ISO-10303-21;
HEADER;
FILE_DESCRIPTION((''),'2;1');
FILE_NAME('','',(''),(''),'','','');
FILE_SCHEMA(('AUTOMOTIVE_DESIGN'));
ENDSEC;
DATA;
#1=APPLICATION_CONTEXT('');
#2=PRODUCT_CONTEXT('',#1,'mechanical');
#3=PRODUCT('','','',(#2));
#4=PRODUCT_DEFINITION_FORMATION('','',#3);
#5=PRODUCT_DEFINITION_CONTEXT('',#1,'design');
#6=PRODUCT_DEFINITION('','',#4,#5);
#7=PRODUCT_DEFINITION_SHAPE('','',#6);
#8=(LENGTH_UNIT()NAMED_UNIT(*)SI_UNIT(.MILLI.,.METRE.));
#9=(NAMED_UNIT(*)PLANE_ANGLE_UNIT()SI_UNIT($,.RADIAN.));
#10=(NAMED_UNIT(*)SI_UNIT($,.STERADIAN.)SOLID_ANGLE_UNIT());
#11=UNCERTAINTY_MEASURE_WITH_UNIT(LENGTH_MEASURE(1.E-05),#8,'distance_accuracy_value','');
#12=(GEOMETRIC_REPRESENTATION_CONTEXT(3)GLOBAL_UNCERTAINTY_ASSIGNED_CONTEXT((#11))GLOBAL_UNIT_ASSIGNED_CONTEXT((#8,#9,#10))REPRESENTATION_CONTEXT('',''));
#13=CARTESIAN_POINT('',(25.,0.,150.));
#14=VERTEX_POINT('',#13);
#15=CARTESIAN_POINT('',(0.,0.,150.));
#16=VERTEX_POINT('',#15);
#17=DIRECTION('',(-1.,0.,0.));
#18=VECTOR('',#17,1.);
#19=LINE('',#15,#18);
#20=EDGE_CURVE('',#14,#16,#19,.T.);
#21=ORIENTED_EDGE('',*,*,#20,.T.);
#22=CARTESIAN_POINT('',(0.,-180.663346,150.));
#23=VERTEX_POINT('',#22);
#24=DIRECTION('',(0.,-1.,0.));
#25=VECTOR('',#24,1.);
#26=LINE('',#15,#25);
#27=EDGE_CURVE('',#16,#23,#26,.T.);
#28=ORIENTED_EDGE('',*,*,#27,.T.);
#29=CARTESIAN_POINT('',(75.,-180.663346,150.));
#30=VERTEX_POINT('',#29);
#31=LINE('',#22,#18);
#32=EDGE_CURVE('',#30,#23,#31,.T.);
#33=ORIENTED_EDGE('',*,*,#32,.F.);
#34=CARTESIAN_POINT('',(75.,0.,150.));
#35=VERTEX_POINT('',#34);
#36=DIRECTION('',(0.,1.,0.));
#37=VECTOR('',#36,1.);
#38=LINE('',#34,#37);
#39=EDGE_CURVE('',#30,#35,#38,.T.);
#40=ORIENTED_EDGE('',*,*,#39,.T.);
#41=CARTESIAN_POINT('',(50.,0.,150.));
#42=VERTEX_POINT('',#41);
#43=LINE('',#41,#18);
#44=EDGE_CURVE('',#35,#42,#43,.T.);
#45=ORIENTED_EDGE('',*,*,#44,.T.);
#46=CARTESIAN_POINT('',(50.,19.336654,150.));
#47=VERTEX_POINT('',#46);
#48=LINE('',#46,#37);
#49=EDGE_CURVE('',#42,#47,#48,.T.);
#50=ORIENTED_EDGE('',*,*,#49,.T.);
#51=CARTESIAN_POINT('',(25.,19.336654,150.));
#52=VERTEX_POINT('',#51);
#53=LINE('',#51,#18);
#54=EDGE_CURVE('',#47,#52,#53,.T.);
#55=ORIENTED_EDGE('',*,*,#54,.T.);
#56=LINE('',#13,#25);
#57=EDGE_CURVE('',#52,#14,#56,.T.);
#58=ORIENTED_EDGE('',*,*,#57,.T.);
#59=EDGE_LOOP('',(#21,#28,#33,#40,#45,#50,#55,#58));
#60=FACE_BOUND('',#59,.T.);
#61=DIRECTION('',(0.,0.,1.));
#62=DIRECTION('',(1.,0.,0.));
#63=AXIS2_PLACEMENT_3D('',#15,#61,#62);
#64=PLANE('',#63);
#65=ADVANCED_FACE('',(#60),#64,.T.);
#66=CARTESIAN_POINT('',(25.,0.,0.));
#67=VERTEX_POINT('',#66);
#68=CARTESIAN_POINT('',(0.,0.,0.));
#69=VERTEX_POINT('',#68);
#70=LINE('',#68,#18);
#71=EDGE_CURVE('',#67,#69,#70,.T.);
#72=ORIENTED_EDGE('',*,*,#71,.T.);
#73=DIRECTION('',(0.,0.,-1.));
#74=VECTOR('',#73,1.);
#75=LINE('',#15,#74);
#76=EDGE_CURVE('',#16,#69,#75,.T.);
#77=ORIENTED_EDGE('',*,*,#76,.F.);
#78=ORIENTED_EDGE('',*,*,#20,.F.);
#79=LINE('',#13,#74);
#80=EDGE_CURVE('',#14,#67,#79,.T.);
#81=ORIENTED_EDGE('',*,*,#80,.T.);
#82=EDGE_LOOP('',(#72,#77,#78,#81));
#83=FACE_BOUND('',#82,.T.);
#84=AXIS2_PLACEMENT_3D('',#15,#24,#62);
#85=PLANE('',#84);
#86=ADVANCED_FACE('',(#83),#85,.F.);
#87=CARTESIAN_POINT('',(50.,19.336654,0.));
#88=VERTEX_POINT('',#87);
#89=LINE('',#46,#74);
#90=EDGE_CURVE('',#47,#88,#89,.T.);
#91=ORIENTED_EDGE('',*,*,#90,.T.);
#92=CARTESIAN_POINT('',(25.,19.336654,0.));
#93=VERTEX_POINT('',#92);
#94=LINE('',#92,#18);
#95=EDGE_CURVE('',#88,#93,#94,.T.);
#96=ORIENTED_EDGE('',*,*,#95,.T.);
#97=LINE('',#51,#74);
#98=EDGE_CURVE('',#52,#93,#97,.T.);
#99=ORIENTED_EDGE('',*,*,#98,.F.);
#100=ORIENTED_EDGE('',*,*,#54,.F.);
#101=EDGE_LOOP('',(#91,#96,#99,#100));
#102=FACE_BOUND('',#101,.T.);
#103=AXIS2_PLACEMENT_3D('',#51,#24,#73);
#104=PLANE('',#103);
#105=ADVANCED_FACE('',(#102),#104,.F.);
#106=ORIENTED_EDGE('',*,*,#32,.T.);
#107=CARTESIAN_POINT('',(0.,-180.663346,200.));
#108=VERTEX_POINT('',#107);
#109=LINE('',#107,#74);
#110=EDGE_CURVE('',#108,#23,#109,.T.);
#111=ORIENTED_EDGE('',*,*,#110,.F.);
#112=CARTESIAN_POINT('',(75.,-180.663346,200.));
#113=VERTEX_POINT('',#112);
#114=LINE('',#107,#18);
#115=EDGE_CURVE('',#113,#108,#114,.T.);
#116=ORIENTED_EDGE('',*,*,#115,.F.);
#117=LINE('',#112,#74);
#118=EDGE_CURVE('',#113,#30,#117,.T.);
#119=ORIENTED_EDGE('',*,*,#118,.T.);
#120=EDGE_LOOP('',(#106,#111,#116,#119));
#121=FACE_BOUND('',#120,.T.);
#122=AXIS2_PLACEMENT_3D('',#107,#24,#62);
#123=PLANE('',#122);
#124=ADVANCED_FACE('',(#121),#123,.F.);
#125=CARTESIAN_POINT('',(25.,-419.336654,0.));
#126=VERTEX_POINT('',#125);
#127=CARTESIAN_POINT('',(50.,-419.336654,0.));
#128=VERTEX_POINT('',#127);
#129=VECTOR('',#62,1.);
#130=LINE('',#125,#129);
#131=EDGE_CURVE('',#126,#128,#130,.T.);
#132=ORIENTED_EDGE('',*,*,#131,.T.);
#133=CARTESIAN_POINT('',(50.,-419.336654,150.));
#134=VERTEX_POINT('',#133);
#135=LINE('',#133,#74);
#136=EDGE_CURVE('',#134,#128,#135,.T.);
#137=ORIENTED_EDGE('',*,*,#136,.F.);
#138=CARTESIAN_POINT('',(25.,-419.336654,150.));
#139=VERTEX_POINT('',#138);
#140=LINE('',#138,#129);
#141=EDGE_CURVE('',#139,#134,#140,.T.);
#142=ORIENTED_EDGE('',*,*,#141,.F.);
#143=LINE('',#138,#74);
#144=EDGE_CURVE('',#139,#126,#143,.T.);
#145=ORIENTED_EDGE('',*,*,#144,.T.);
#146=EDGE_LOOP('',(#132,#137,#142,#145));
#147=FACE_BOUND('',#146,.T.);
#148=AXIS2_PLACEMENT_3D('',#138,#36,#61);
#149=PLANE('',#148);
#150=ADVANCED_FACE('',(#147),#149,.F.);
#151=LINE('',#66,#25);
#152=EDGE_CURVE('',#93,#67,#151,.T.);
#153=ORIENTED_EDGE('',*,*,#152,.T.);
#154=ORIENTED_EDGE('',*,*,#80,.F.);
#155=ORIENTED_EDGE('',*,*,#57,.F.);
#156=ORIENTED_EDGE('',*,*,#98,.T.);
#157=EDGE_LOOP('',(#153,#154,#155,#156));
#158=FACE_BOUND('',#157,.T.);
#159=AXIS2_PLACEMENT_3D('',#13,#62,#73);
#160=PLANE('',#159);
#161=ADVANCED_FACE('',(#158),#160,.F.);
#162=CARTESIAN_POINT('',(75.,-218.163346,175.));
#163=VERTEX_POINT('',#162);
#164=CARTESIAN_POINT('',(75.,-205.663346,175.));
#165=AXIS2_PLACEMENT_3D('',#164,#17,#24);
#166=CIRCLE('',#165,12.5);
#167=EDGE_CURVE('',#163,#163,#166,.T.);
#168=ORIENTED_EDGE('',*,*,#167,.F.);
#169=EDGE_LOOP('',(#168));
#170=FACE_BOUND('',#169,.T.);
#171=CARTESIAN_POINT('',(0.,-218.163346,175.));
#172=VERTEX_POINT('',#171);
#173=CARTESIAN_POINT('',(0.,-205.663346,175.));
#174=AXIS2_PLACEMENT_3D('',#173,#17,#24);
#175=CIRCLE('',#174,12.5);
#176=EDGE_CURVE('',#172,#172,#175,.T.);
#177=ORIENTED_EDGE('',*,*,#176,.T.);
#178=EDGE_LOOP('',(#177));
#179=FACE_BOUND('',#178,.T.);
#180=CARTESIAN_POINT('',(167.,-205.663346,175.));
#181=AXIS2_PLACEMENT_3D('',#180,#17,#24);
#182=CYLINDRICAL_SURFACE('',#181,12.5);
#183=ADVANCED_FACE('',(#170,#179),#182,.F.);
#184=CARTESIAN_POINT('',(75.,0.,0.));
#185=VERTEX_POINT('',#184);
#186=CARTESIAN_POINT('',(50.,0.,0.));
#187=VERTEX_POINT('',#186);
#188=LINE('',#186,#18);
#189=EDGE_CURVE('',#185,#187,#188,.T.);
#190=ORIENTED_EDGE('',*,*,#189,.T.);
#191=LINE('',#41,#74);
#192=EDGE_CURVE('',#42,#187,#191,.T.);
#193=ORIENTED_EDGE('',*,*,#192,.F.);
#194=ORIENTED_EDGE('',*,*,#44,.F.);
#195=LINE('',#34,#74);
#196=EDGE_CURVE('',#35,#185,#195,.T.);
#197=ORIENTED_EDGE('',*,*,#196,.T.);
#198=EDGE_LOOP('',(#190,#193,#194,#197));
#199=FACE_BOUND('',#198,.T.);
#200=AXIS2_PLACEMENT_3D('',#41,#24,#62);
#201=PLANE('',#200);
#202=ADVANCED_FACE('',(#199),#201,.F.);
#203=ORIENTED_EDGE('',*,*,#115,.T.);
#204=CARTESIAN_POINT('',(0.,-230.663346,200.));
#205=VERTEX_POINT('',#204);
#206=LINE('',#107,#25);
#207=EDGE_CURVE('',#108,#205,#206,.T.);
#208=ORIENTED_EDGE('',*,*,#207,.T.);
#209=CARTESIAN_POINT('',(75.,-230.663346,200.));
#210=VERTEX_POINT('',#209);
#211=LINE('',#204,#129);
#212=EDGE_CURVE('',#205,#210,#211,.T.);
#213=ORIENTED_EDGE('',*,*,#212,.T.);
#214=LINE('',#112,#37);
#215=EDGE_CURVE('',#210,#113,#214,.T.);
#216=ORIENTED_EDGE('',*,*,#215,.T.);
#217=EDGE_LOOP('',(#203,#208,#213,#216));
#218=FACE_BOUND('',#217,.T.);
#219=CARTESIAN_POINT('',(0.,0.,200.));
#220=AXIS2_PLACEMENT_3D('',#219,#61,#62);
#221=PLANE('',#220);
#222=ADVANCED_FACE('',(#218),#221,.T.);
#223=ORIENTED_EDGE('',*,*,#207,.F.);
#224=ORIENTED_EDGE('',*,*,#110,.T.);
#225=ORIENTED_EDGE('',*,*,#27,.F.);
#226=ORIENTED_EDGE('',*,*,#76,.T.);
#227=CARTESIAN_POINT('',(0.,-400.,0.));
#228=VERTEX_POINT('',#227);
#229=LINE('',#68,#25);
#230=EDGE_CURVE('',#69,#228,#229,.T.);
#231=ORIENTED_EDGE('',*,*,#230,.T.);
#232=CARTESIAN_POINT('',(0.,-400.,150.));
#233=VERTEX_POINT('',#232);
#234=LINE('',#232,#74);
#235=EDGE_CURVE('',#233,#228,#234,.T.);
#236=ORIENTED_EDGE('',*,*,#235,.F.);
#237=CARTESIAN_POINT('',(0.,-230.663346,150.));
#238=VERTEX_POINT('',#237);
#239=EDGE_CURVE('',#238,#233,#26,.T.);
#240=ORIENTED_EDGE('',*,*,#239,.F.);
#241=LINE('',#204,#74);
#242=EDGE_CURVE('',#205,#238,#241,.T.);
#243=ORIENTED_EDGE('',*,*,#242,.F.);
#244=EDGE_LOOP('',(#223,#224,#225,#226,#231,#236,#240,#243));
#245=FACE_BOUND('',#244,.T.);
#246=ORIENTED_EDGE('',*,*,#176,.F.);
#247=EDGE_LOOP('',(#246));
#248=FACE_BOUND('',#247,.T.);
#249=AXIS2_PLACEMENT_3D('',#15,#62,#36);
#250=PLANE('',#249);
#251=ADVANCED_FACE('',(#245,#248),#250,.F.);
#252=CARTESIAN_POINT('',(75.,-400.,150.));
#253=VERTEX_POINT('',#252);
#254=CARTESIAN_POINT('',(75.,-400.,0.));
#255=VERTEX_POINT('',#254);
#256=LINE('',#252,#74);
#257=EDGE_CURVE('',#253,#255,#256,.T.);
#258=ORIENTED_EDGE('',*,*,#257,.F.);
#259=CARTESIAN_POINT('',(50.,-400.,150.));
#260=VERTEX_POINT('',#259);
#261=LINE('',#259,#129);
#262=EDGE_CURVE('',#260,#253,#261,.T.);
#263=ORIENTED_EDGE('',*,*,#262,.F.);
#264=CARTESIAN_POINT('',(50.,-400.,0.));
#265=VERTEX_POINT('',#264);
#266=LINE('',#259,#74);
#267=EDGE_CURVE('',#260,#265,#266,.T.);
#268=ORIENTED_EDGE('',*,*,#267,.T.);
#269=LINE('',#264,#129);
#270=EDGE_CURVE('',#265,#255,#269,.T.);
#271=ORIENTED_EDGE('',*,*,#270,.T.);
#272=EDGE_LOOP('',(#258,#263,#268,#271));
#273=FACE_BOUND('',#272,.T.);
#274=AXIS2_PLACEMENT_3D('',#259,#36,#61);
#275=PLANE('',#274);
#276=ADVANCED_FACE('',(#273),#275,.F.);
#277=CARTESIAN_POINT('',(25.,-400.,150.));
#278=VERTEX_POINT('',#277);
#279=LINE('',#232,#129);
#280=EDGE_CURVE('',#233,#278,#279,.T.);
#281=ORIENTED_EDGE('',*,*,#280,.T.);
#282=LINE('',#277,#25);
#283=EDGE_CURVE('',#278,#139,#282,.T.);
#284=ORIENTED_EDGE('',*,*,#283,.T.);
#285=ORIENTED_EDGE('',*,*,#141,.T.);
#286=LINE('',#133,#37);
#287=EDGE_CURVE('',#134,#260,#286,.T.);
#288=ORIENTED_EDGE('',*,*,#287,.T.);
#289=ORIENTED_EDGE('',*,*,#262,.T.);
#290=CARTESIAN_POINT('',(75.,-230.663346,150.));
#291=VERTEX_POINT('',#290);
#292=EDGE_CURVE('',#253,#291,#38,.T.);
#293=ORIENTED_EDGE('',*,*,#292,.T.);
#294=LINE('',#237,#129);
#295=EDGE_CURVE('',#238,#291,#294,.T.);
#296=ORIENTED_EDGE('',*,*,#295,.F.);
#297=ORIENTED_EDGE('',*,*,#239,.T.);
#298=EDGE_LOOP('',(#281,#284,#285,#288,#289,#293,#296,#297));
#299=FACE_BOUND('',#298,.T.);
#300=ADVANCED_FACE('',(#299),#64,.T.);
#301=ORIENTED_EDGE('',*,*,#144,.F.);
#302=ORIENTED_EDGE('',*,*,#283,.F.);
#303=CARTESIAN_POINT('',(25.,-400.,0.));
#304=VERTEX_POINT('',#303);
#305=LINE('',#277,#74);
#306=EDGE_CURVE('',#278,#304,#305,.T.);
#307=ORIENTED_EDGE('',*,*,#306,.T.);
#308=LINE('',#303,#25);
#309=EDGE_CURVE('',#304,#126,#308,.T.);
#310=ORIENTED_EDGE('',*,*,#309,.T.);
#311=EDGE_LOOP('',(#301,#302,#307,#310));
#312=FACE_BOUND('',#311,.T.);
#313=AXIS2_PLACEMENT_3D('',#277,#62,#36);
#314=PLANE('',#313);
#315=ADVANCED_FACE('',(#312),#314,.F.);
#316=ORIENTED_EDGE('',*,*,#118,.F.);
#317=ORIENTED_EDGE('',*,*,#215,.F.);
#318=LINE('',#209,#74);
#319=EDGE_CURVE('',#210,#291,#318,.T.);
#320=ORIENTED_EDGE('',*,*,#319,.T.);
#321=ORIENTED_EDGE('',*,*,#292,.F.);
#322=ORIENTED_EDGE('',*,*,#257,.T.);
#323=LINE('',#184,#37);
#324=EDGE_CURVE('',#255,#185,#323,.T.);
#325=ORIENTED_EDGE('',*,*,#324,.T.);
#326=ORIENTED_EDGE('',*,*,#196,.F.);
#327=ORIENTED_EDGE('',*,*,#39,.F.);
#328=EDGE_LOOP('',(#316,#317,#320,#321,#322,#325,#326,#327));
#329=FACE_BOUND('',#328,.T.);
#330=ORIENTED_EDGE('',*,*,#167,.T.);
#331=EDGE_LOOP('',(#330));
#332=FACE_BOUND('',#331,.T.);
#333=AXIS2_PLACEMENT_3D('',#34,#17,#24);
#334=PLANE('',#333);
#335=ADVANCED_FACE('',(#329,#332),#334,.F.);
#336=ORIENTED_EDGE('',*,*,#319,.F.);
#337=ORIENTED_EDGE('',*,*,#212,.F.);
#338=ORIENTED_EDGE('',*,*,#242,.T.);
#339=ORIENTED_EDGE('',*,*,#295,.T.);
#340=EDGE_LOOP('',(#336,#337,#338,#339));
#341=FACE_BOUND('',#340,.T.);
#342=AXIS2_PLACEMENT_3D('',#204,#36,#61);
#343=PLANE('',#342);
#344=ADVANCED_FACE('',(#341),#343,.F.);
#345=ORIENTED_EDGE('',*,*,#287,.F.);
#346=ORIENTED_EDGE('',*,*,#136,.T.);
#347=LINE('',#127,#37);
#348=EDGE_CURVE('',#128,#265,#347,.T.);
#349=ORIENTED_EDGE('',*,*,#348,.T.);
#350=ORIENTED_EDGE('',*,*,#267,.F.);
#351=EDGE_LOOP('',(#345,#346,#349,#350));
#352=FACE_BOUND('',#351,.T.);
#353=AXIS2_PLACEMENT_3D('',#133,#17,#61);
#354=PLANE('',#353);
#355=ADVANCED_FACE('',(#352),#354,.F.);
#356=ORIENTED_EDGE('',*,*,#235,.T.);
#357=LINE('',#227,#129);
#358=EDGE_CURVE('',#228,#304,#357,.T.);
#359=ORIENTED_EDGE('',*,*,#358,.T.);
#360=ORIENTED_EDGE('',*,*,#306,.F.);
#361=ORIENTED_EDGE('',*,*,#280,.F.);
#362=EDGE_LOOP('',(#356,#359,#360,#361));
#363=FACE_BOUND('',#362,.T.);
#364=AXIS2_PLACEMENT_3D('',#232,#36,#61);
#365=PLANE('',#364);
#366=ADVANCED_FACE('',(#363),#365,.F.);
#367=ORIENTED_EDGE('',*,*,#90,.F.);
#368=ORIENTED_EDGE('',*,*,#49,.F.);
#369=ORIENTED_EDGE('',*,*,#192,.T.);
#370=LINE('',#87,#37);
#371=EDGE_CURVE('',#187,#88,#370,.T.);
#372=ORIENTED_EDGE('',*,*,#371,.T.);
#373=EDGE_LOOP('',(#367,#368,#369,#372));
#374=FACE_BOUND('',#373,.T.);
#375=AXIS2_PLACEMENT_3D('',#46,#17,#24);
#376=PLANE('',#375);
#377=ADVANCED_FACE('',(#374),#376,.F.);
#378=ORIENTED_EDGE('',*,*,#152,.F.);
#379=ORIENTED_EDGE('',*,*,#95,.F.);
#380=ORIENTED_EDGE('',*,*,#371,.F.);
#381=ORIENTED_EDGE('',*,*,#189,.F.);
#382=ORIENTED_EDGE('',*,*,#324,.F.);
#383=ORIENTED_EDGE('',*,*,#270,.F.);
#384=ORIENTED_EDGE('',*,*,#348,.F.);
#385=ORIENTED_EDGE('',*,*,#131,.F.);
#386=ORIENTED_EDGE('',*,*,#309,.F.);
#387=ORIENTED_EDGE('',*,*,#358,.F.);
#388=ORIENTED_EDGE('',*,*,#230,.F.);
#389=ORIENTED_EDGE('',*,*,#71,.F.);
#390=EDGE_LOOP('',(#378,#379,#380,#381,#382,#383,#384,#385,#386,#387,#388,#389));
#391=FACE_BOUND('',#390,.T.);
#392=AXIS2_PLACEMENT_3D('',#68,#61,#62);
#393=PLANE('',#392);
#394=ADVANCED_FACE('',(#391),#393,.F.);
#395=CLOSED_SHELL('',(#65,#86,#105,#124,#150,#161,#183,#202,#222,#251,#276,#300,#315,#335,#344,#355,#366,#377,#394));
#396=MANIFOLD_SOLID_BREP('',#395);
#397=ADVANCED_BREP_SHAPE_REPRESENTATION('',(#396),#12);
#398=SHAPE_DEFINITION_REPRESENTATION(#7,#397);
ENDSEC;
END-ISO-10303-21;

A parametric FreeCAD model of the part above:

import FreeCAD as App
import Part
import Sketcher

V = App.Vector


def add_polygon(sketch, points):
    """Adds a closed chain of lines whose ends are joined by coincident constraints."""
    first, n = sketch.GeometryCount, len(points)
    for a, b in zip(points, points[1:] + points[:1]):
        sketch.addGeometry(Part.LineSegment(App.Vector(*a, 0), App.Vector(*b, 0)), False)
    for i in range(n):
        sketch.addConstraint(Sketcher.Constraint("Coincident", first + i, 2, first + (i + 1) % n, 1))

doc = App.newDocument("Part")
body = doc.addObject("PartDesign::Body", "Body")

# Sketch on XY plane
sketch1 = doc.addObject("Sketcher::SketchObject", "Sketch")
body.addObject(sketch1)
sketch1.AttachmentSupport = (doc.XY_Plane, [""])
sketch1.MapMode = "FlatFace"
add_polygon(sketch1, [(25, 19), (25, 0), (0, 0), (0, -400), (25, -400), (25, -419), (50, -419), (50, -400), (75, -400), (75, 0), (50, 0), (50, 19)])  # lines 0-11
sketch1.addConstraint([
    Sketcher.Constraint("Vertical", 0),
    Sketcher.Constraint("Horizontal", 1),
    Sketcher.Constraint("Vertical", 2),
    Sketcher.Constraint("Horizontal", 3),
    Sketcher.Constraint("Vertical", 4),
    Sketcher.Constraint("Horizontal", 5),
    Sketcher.Constraint("Vertical", 6),
    Sketcher.Constraint("Horizontal", 7),
    Sketcher.Constraint("Vertical", 8),
    Sketcher.Constraint("Horizontal", 9),
    Sketcher.Constraint("Vertical", 10),
    Sketcher.Constraint("Horizontal", 11),
    Sketcher.Constraint("Coincident", 1, 2, -1, 1),
    Sketcher.Constraint("PointOnObject", 8, 2, -1),
    Sketcher.Constraint("Horizontal", 3, 2, 6, 2),
    Sketcher.Constraint("Vertical", 0, 2, 3, 2),
    Sketcher.Constraint("Vertical", 6, 2, 9, 2),
    Sketcher.Constraint("Equal", 3, 5),
    Sketcher.Constraint("Equal", 5, 7),
    Sketcher.Constraint("Equal", 0, 4),
    Sketcher.Constraint("DistanceX", 1, 2, 1, 1, 25.0),
    Sketcher.Constraint("DistanceY", 2, 2, 2, 1, 400.0),
    Sketcher.Constraint("DistanceY", 0, 2, 0, 1, 19.336654),
])
pad1 = doc.addObject("PartDesign::Pad", "Pad")
body.addObject(pad1)
pad1.Profile = sketch1
pad1.Length = 150

# Sketch on XY plane
sketch2 = doc.addObject("Sketcher::SketchObject", "Sketch001")
body.addObject(sketch2)
sketch2.AttachmentSupport = (doc.XY_Plane, [""])
sketch2.MapMode = "FlatFace"
sketch2.AttachmentOffset = App.Placement(V(0, 0, 150), App.Rotation())
add_polygon(sketch2, [(0, -181), (0, -231), (75, -231), (75, -181)])  # lines 0-3
sketch2.addConstraint([
    Sketcher.Constraint("Vertical", 0),
    Sketcher.Constraint("Horizontal", 1),
    Sketcher.Constraint("Vertical", 2),
    Sketcher.Constraint("Horizontal", 3),
    Sketcher.Constraint("PointOnObject", 0, 2, -2),
    Sketcher.Constraint("DistanceX", 1, 1, 1, 2, 75.0),
    Sketcher.Constraint("DistanceY", 0, 2, 0, 1, 50.0),
    Sketcher.Constraint("DistanceY", 0, 2, -1, 1, 230.663346),
])
pad2 = doc.addObject("PartDesign::Pad", "Pad001")
body.addObject(pad2)
pad2.Profile = sketch2
pad2.Length = 50

# Sketch on YZ plane
sketch3 = doc.addObject("Sketcher::SketchObject", "Sketch002")
body.addObject(sketch3)
sketch3.AttachmentSupport = (doc.YZ_Plane, [""])
sketch3.MapMode = "FlatFace"
sketch3.addGeometry(Part.Circle(V(-206, 175, 0), V(0, 0, 1), 12), False)
sketch3.addConstraint([
    Sketcher.Constraint("Diameter", 0, 25.0),
    Sketcher.Constraint("DistanceY", -1, 1, 0, 3, 175.0),
    Sketcher.Constraint("DistanceX", 0, 3, -1, 1, 205.663346),
])
pocket1 = doc.addObject("PartDesign::Pocket", "Pocket")
body.addObject(pocket1)
pocket1.Profile = sketch3
pocket1.Length = 167
pocket1.Reversed = True

doc.recompute()
